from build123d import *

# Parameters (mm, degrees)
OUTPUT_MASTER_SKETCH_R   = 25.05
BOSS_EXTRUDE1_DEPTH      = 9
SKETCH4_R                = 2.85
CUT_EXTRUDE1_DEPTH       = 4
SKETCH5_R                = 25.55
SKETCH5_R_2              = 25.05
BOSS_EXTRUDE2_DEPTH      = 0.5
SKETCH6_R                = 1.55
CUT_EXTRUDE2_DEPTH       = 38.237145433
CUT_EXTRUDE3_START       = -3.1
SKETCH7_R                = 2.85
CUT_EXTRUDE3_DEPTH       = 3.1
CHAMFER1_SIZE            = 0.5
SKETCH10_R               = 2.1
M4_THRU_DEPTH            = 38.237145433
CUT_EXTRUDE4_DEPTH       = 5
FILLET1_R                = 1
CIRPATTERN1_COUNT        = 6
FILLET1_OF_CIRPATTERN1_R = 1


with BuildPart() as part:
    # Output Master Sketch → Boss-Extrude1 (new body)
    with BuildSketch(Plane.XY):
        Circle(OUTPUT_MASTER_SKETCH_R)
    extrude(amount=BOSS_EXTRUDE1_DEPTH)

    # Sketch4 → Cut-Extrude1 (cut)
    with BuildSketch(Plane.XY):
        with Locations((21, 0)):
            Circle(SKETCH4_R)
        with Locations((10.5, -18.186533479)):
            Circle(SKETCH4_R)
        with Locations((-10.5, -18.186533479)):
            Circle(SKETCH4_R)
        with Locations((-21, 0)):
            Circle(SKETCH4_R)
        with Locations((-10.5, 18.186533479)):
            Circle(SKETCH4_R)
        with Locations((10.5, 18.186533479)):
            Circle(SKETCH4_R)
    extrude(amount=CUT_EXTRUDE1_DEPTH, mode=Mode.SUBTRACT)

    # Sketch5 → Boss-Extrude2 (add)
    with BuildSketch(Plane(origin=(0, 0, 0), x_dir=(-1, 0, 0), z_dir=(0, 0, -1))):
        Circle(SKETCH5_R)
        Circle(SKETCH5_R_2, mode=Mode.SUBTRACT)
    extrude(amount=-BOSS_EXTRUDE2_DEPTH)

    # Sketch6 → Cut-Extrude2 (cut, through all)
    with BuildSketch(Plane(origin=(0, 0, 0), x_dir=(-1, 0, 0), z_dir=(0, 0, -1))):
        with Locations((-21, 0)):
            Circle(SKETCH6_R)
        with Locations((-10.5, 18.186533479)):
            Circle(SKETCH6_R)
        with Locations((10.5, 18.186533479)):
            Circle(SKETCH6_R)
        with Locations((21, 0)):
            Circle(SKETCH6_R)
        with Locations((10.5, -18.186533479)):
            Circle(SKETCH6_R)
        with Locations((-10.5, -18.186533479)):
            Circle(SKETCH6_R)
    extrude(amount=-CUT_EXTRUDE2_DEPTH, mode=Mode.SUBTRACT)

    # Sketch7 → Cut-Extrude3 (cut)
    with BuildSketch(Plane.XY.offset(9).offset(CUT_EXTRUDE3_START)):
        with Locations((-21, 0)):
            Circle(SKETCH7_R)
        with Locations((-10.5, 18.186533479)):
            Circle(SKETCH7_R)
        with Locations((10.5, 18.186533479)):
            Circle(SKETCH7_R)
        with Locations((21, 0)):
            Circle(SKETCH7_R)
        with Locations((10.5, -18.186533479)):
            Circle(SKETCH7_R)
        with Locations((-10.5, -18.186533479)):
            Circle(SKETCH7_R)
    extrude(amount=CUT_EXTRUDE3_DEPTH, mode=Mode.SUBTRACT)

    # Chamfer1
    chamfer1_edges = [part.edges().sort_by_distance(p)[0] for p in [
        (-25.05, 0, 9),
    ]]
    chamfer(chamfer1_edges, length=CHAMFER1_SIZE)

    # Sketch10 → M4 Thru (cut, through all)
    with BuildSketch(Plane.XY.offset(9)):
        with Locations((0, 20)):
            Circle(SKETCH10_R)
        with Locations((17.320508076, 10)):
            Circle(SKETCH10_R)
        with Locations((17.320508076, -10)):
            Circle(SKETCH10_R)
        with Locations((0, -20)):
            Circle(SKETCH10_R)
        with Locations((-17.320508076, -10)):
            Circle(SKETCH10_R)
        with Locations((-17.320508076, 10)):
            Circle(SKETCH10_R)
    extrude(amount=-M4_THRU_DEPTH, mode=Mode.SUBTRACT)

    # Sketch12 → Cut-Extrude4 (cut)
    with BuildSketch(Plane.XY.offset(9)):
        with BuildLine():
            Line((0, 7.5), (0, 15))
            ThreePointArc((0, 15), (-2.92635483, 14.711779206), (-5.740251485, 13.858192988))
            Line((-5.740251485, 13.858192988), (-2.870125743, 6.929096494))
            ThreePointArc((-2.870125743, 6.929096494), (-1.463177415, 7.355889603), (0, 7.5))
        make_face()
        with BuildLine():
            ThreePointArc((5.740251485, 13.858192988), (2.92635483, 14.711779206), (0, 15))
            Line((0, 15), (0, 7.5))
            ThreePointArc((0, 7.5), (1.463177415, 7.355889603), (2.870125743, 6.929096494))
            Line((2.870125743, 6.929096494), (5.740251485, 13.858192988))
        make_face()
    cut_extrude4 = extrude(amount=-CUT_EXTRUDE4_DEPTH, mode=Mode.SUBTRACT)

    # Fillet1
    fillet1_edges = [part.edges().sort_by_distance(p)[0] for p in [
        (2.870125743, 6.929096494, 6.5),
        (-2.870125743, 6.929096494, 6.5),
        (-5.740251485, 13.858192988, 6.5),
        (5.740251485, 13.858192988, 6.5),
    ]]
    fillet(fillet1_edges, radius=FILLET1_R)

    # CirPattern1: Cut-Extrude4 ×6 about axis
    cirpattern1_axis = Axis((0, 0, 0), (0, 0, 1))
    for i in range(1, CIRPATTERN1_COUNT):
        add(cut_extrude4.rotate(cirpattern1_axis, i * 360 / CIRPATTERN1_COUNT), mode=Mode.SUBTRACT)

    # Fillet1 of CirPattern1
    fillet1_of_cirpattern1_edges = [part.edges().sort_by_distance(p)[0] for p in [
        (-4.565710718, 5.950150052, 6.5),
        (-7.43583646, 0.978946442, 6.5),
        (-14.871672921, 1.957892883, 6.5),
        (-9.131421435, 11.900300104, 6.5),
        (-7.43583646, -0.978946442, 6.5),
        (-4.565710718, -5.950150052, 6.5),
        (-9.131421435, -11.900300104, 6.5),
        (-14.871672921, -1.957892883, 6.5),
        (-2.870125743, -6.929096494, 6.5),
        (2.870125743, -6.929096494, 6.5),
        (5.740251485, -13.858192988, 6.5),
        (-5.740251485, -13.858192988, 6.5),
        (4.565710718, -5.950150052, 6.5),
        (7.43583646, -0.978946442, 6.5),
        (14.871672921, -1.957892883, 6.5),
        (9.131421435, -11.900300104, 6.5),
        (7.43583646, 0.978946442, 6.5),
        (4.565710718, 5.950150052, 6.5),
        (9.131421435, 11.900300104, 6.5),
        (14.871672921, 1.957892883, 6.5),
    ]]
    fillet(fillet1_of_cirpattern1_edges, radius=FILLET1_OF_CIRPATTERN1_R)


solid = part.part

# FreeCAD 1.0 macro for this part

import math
import FreeCAD as App
import Part
import Sketcher

V = App.Vector
Q = App.Units.Quantity


def edges_at(feature, points):
    """Names of the edges that pass closest to the given points."""
    edges = feature.Shape.Edges
    near = lambda p: min(range(len(edges)), key=lambda i: edges[i].distToShape(Part.Vertex(*p))[0])
    return sorted({f"Edge{near(p) + 1}" for p in points})

doc = App.newDocument("Part")
body = doc.addObject("PartDesign::Body", "Body")

# Sketch on XY plane
sketch1 = doc.addObject("Sketcher::SketchObject", "Sketch")
body.addObject(sketch1)
sketch1.AttachmentSupport = (doc.XY_Plane, [""])
sketch1.MapMode = "FlatFace"
sketch1.addGeometry(Part.Circle(V(0, 0, 0), V(0, 0, 1), 25.05), False)
sketch1.addConstraint([
    Sketcher.Constraint("Coincident", 0, 3, -1, 1),
    Sketcher.Constraint("Diameter", 0, Q("50.1 mm")),
])
pad1 = doc.addObject("PartDesign::Pad", "Pad")
body.addObject(pad1)
pad1.Profile = sketch1
pad1.Length = 9

# Sketch on XY plane
sketch2 = doc.addObject("Sketcher::SketchObject", "Sketch001")
body.addObject(sketch2)
sketch2.AttachmentSupport = (doc.XY_Plane, [""])
sketch2.MapMode = "FlatFace"
sketch2.addGeometry([
    Part.Circle(V(21, 0, 0), V(0, 0, 1), 2.85),  # 0
    Part.Circle(V(10.5, -18.186533, 0), V(0, 0, 1), 2.85),  # 1
    Part.Circle(V(-10.5, -18.186533, 0), V(0, 0, 1), 2.85),  # 2
    Part.Circle(V(-21, 0, 0), V(0, 0, 1), 2.85),  # 3
    Part.Circle(V(-10.5, 18.186533, 0), V(0, 0, 1), 2.85),  # 4
    Part.Circle(V(10.5, 18.186533, 0), V(0, 0, 1), 2.85),  # 5
], False)
sketch2.addConstraint([
    Sketcher.Constraint("Equal", 0, 1),
    Sketcher.Constraint("Equal", 1, 2),
    Sketcher.Constraint("Equal", 2, 3),
    Sketcher.Constraint("Equal", 3, 4),
    Sketcher.Constraint("Equal", 4, 5),
    Sketcher.Constraint("Symmetric", 0, 3, 3, 3, -1, 1),
    Sketcher.Constraint("Symmetric", 1, 3, 4, 3, -1, 1),
    Sketcher.Constraint("Symmetric", 2, 3, 5, 3, -1, 1),
    Sketcher.Constraint("Symmetric", 1, 3, 2, 3, -2),
    Sketcher.Constraint("PointOnObject", 0, 3, -1),
    Sketcher.Constraint("Diameter", 0, Q("5.7 mm")),
    Sketcher.Constraint("DistanceX", -1, 1, 0, 3, Q("21 mm")),
    Sketcher.Constraint("DistanceX", 2, 3, 1, 3, Q("21 mm")),
    Sketcher.Constraint("DistanceY", 1, 3, -1, 1, Q("18.186533 mm")),
])
pocket1 = doc.addObject("PartDesign::Pocket", "Pocket")
body.addObject(pocket1)
pocket1.Profile = sketch2
pocket1.Length = 4
pocket1.Reversed = True

# Sketch on XY plane
sketch3 = doc.addObject("Sketcher::SketchObject", "Sketch002")
body.addObject(sketch3)
sketch3.AttachmentSupport = (doc.XY_Plane, [""])
sketch3.MapMode = "FlatFace"
sketch3.addGeometry([
    Part.Circle(V(0, 0, 0), V(0, 0, 1), 25.55),
    Part.Circle(V(0, 0, 0), V(0, 0, 1), 25.05),
], False)
sketch3.addConstraint([
    Sketcher.Constraint("Coincident", 0, 3, -1, 1),
    Sketcher.Constraint("Coincident", 1, 3, -1, 1),
    Sketcher.Constraint("Diameter", 0, Q("51.1 mm")),
    Sketcher.Constraint("Diameter", 1, Q("50.1 mm")),
])
pad2 = doc.addObject("PartDesign::Pad", "Pad001")
body.addObject(pad2)
pad2.Profile = sketch3
pad2.Length = 0.5

# Sketch on XY plane
sketch4 = doc.addObject("Sketcher::SketchObject", "Sketch003")
body.addObject(sketch4)
sketch4.AttachmentSupport = (doc.XY_Plane, [""])
sketch4.MapMode = "FlatFace"
sketch4.addGeometry([
    Part.Circle(V(21, 0, 0), V(0, 0, 1), 1.55),  # 0
    Part.Circle(V(10.5, 18.186533, 0), V(0, 0, 1), 1.55),  # 1
    Part.Circle(V(-10.5, 18.186533, 0), V(0, 0, 1), 1.55),  # 2
    Part.Circle(V(-21, 0, 0), V(0, 0, 1), 1.55),  # 3
    Part.Circle(V(-10.5, -18.186533, 0), V(0, 0, 1), 1.55),  # 4
    Part.Circle(V(10.5, -18.186533, 0), V(0, 0, 1), 1.55),  # 5
], False)
sketch4.addConstraint([
    Sketcher.Constraint("Equal", 0, 1),
    Sketcher.Constraint("Equal", 1, 2),
    Sketcher.Constraint("Equal", 2, 3),
    Sketcher.Constraint("Equal", 3, 4),
    Sketcher.Constraint("Equal", 4, 5),
    Sketcher.Constraint("Symmetric", 0, 3, 3, 3, -1, 1),
    Sketcher.Constraint("Symmetric", 1, 3, 4, 3, -1, 1),
    Sketcher.Constraint("Symmetric", 2, 3, 5, 3, -1, 1),
    Sketcher.Constraint("Symmetric", 1, 3, 2, 3, -2),
    Sketcher.Constraint("PointOnObject", 0, 3, -1),
    Sketcher.Constraint("Diameter", 0, Q("3.1 mm")),
    Sketcher.Constraint("DistanceX", -1, 1, 0, 3, Q("21 mm")),
    Sketcher.Constraint("DistanceX", 2, 3, 1, 3, Q("21 mm")),
    Sketcher.Constraint("DistanceY", -1, 1, 1, 3, Q("18.186533 mm")),
])
pocket2 = doc.addObject("PartDesign::Pocket", "Pocket001")
body.addObject(pocket2)
pocket2.Profile = sketch4
pocket2.Type = "ThroughAll"
pocket2.Reversed = True

# Sketch on XY plane
sketch5 = doc.addObject("Sketcher::SketchObject", "Sketch004")
body.addObject(sketch5)
sketch5.AttachmentSupport = (doc.XY_Plane, [""])
sketch5.MapMode = "FlatFace"
sketch5.AttachmentOffset = App.Placement(V(0, 0, 5.9), App.Rotation())
sketch5.addGeometry([
    Part.Circle(V(-21, 0, 0), V(0, 0, 1), 2.85),  # 0
    Part.Circle(V(-10.5, 18.186533, 0), V(0, 0, 1), 2.85),  # 1
    Part.Circle(V(10.5, 18.186533, 0), V(0, 0, 1), 2.85),  # 2
    Part.Circle(V(21, 0, 0), V(0, 0, 1), 2.85),  # 3
    Part.Circle(V(10.5, -18.186533, 0), V(0, 0, 1), 2.85),  # 4
    Part.Circle(V(-10.5, -18.186533, 0), V(0, 0, 1), 2.85),  # 5
], False)
sketch5.addConstraint([
    Sketcher.Constraint("Equal", 0, 1),
    Sketcher.Constraint("Equal", 1, 2),
    Sketcher.Constraint("Equal", 2, 3),
    Sketcher.Constraint("Equal", 3, 4),
    Sketcher.Constraint("Equal", 4, 5),
    Sketcher.Constraint("Symmetric", 0, 3, 3, 3, -1, 1),
    Sketcher.Constraint("Symmetric", 1, 3, 4, 3, -1, 1),
    Sketcher.Constraint("Symmetric", 2, 3, 5, 3, -1, 1),
    Sketcher.Constraint("Symmetric", 1, 3, 2, 3, -2),
    Sketcher.Constraint("PointOnObject", 0, 3, -1),
    Sketcher.Constraint("Diameter", 0, Q("5.7 mm")),
    Sketcher.Constraint("DistanceX", 0, 3, -1, 1, Q("21 mm")),
    Sketcher.Constraint("DistanceX", 1, 3, 2, 3, Q("21 mm")),
    Sketcher.Constraint("DistanceY", -1, 1, 1, 3, Q("18.186533 mm")),
])
pocket3 = doc.addObject("PartDesign::Pocket", "Pocket002")
body.addObject(pocket3)
pocket3.Profile = sketch5
pocket3.Length = 3.1
pocket3.Reversed = True
doc.recompute()

chamfer = doc.addObject("PartDesign::Chamfer", "Chamfer")
body.addObject(chamfer)
chamfer.Base = (pocket3, edges_at(pocket3, [(-25.05, 0, 9)]))
chamfer.Size = 0.5

# Sketch on XY plane
sketch6 = doc.addObject("Sketcher::SketchObject", "Sketch005")
body.addObject(sketch6)
sketch6.AttachmentSupport = (doc.XY_Plane, [""])
sketch6.MapMode = "FlatFace"
sketch6.AttachmentOffset = App.Placement(V(0, 0, 9), App.Rotation())
sketch6.addGeometry([
    Part.Circle(V(0, 20, 0), V(0, 0, 1), 2.1),  # 0
    Part.Circle(V(17.320508, 10, 0), V(0, 0, 1), 2.1),  # 1
    Part.Circle(V(17.320508, -10, 0), V(0, 0, 1), 2.1),  # 2
    Part.Circle(V(0, -20, 0), V(0, 0, 1), 2.1),  # 3
    Part.Circle(V(-17.320508, -10, 0), V(0, 0, 1), 2.1),  # 4
    Part.Circle(V(-17.320508, 10, 0), V(0, 0, 1), 2.1),  # 5
], False)
sketch6.addConstraint([
    Sketcher.Constraint("Equal", 0, 1),
    Sketcher.Constraint("Equal", 1, 2),
    Sketcher.Constraint("Equal", 2, 3),
    Sketcher.Constraint("Equal", 3, 4),
    Sketcher.Constraint("Equal", 4, 5),
    Sketcher.Constraint("Symmetric", 0, 3, 3, 3, -1, 1),
    Sketcher.Constraint("Symmetric", 1, 3, 4, 3, -1, 1),
    Sketcher.Constraint("Symmetric", 2, 3, 5, 3, -1, 1),
    Sketcher.Constraint("Symmetric", 2, 3, 4, 3, -2),
    Sketcher.Constraint("PointOnObject", 0, 3, -2),
    Sketcher.Constraint("Diameter", 0, Q("4.2 mm")),
    Sketcher.Constraint("DistanceY", -1, 1, 0, 3, Q("20 mm")),
    Sketcher.Constraint("DistanceY", -1, 1, 1, 3, Q("10 mm")),
    Sketcher.Constraint("DistanceX", -1, 1, 1, 3, Q("17.320508 mm")),
])
pocket4 = doc.addObject("PartDesign::Pocket", "Pocket003")
body.addObject(pocket4)
pocket4.Profile = sketch6
pocket4.Type = "ThroughAll"

# Sketch on XY plane
sketch7 = doc.addObject("Sketcher::SketchObject", "Sketch006")
body.addObject(sketch7)
sketch7.AttachmentSupport = (doc.XY_Plane, [""])
sketch7.MapMode = "FlatFace"
sketch7.AttachmentOffset = App.Placement(V(0, 0, 9), App.Rotation())
sketch7.addGeometry([
    Part.ArcOfCircle(Part.Circle(V(0, 0, 0), V(0, 0, 1), 15), math.radians(90), math.radians(112.5)),  # 0
    Part.LineSegment(V(-5.740251, 13.858193, 0), V(-2.870126, 6.929096, 0)),  # 1
    Part.ArcOfCircle(Part.Circle(V(0, 0, 0), V(0, 0, 1), 7.5), math.radians(90), math.radians(112.5)),  # 2
    Part.ArcOfCircle(Part.Circle(V(0, 0, 0), V(0, 0, 1), 7.5), math.radians(67.5), math.radians(90)),  # 3
    Part.LineSegment(V(2.870126, 6.929096, 0), V(5.740251, 13.858193, 0)),  # 4
    Part.ArcOfCircle(Part.Circle(V(0, 0, 0), V(0, 0, 1), 15), math.radians(67.5), math.radians(90)),  # 5
], False)
sketch7.addConstraint([
    Sketcher.Constraint("Coincident", 0, 2, 1, 1),
    Sketcher.Constraint("Coincident", 1, 2, 2, 2),
    Sketcher.Constraint("Tangent", 2, 1, 3, 2),
    Sketcher.Constraint("Coincident", 3, 1, 4, 1),
    Sketcher.Constraint("Coincident", 4, 2, 5, 1),
    Sketcher.Constraint("Tangent", 5, 2, 0, 1),
    Sketcher.Constraint("Coincident", 0, 3, -1, 1),
    Sketcher.Constraint("Coincident", 2, 3, -1, 1),
    Sketcher.Constraint("Equal", 2, 3),
    Sketcher.Constraint("Equal", 0, 5),
    Sketcher.Constraint("PointOnObject", 2, 1, -2),
    Sketcher.Constraint("PointOnObject", 5, 2, -2),
    Sketcher.Constraint("Horizontal", 1, 2, 3, 1),
    Sketcher.Constraint("Horizontal", 0, 2, 4, 2),
    Sketcher.Constraint("Radius", 0, Q("15 mm")),
    Sketcher.Constraint("Radius", 2, Q("7.5 mm")),
    Sketcher.Constraint("Angle", 1, Q("-67.5 deg")),
    Sketcher.Constraint("DistanceX", 0, 2, -1, 1, Q("5.740251 mm")),
])
pocket5 = doc.addObject("PartDesign::Pocket", "Pocket004")
body.addObject(pocket5)
pocket5.Profile = sketch7
pocket5.Length = 5
doc.recompute()

fillet = doc.addObject("PartDesign::Fillet", "Fillet")
body.addObject(fillet)
fillet.Base = (pocket5, edges_at(pocket5, [
    (2.87, 6.929, 6.5),
    (-2.87, 6.929, 6.5),
    (-5.74, 13.858, 6.5),
    (5.74, 13.858, 6.5),
]))
fillet.Radius = 1
doc.recompute()

polarpattern = doc.addObject("PartDesign::PolarPattern", "PolarPattern")
body.addObject(polarpattern)
polarpattern.Originals = [pocket5]
polarpattern.Axis = (doc.Z_Axis, [""])
polarpattern.Angle = 360
polarpattern.Occurrences = 6
body.Tip = polarpattern
doc.recompute()

fillet2 = doc.addObject("PartDesign::Fillet", "Fillet001")
body.addObject(fillet2)
fillet2.Base = (polarpattern, edges_at(polarpattern, [
    (-4.566, 5.95, 6.5),
    (-7.436, 0.979, 6.5),
    (-14.872, 1.958, 6.5),
    (-9.131, 11.9, 6.5),
    (-7.436, -0.979, 6.5),
    (-4.566, -5.95, 6.5),
    (-9.131, -11.9, 6.5),
    (-14.872, -1.958, 6.5),
    (-2.87, -6.929, 6.5),
    (2.87, -6.929, 6.5),
    (5.74, -13.858, 6.5),
    (-5.74, -13.858, 6.5),
    (4.566, -5.95, 6.5),
    (7.436, -0.979, 6.5),
    (14.872, -1.958, 6.5),
    (9.131, -11.9, 6.5),
    (7.436, 0.979, 6.5),
    (4.566, 5.95, 6.5),
    (9.131, 11.9, 6.5),
    (14.872, 1.958, 6.5),
]))
fillet2.Radius = 1

doc.recompute()
